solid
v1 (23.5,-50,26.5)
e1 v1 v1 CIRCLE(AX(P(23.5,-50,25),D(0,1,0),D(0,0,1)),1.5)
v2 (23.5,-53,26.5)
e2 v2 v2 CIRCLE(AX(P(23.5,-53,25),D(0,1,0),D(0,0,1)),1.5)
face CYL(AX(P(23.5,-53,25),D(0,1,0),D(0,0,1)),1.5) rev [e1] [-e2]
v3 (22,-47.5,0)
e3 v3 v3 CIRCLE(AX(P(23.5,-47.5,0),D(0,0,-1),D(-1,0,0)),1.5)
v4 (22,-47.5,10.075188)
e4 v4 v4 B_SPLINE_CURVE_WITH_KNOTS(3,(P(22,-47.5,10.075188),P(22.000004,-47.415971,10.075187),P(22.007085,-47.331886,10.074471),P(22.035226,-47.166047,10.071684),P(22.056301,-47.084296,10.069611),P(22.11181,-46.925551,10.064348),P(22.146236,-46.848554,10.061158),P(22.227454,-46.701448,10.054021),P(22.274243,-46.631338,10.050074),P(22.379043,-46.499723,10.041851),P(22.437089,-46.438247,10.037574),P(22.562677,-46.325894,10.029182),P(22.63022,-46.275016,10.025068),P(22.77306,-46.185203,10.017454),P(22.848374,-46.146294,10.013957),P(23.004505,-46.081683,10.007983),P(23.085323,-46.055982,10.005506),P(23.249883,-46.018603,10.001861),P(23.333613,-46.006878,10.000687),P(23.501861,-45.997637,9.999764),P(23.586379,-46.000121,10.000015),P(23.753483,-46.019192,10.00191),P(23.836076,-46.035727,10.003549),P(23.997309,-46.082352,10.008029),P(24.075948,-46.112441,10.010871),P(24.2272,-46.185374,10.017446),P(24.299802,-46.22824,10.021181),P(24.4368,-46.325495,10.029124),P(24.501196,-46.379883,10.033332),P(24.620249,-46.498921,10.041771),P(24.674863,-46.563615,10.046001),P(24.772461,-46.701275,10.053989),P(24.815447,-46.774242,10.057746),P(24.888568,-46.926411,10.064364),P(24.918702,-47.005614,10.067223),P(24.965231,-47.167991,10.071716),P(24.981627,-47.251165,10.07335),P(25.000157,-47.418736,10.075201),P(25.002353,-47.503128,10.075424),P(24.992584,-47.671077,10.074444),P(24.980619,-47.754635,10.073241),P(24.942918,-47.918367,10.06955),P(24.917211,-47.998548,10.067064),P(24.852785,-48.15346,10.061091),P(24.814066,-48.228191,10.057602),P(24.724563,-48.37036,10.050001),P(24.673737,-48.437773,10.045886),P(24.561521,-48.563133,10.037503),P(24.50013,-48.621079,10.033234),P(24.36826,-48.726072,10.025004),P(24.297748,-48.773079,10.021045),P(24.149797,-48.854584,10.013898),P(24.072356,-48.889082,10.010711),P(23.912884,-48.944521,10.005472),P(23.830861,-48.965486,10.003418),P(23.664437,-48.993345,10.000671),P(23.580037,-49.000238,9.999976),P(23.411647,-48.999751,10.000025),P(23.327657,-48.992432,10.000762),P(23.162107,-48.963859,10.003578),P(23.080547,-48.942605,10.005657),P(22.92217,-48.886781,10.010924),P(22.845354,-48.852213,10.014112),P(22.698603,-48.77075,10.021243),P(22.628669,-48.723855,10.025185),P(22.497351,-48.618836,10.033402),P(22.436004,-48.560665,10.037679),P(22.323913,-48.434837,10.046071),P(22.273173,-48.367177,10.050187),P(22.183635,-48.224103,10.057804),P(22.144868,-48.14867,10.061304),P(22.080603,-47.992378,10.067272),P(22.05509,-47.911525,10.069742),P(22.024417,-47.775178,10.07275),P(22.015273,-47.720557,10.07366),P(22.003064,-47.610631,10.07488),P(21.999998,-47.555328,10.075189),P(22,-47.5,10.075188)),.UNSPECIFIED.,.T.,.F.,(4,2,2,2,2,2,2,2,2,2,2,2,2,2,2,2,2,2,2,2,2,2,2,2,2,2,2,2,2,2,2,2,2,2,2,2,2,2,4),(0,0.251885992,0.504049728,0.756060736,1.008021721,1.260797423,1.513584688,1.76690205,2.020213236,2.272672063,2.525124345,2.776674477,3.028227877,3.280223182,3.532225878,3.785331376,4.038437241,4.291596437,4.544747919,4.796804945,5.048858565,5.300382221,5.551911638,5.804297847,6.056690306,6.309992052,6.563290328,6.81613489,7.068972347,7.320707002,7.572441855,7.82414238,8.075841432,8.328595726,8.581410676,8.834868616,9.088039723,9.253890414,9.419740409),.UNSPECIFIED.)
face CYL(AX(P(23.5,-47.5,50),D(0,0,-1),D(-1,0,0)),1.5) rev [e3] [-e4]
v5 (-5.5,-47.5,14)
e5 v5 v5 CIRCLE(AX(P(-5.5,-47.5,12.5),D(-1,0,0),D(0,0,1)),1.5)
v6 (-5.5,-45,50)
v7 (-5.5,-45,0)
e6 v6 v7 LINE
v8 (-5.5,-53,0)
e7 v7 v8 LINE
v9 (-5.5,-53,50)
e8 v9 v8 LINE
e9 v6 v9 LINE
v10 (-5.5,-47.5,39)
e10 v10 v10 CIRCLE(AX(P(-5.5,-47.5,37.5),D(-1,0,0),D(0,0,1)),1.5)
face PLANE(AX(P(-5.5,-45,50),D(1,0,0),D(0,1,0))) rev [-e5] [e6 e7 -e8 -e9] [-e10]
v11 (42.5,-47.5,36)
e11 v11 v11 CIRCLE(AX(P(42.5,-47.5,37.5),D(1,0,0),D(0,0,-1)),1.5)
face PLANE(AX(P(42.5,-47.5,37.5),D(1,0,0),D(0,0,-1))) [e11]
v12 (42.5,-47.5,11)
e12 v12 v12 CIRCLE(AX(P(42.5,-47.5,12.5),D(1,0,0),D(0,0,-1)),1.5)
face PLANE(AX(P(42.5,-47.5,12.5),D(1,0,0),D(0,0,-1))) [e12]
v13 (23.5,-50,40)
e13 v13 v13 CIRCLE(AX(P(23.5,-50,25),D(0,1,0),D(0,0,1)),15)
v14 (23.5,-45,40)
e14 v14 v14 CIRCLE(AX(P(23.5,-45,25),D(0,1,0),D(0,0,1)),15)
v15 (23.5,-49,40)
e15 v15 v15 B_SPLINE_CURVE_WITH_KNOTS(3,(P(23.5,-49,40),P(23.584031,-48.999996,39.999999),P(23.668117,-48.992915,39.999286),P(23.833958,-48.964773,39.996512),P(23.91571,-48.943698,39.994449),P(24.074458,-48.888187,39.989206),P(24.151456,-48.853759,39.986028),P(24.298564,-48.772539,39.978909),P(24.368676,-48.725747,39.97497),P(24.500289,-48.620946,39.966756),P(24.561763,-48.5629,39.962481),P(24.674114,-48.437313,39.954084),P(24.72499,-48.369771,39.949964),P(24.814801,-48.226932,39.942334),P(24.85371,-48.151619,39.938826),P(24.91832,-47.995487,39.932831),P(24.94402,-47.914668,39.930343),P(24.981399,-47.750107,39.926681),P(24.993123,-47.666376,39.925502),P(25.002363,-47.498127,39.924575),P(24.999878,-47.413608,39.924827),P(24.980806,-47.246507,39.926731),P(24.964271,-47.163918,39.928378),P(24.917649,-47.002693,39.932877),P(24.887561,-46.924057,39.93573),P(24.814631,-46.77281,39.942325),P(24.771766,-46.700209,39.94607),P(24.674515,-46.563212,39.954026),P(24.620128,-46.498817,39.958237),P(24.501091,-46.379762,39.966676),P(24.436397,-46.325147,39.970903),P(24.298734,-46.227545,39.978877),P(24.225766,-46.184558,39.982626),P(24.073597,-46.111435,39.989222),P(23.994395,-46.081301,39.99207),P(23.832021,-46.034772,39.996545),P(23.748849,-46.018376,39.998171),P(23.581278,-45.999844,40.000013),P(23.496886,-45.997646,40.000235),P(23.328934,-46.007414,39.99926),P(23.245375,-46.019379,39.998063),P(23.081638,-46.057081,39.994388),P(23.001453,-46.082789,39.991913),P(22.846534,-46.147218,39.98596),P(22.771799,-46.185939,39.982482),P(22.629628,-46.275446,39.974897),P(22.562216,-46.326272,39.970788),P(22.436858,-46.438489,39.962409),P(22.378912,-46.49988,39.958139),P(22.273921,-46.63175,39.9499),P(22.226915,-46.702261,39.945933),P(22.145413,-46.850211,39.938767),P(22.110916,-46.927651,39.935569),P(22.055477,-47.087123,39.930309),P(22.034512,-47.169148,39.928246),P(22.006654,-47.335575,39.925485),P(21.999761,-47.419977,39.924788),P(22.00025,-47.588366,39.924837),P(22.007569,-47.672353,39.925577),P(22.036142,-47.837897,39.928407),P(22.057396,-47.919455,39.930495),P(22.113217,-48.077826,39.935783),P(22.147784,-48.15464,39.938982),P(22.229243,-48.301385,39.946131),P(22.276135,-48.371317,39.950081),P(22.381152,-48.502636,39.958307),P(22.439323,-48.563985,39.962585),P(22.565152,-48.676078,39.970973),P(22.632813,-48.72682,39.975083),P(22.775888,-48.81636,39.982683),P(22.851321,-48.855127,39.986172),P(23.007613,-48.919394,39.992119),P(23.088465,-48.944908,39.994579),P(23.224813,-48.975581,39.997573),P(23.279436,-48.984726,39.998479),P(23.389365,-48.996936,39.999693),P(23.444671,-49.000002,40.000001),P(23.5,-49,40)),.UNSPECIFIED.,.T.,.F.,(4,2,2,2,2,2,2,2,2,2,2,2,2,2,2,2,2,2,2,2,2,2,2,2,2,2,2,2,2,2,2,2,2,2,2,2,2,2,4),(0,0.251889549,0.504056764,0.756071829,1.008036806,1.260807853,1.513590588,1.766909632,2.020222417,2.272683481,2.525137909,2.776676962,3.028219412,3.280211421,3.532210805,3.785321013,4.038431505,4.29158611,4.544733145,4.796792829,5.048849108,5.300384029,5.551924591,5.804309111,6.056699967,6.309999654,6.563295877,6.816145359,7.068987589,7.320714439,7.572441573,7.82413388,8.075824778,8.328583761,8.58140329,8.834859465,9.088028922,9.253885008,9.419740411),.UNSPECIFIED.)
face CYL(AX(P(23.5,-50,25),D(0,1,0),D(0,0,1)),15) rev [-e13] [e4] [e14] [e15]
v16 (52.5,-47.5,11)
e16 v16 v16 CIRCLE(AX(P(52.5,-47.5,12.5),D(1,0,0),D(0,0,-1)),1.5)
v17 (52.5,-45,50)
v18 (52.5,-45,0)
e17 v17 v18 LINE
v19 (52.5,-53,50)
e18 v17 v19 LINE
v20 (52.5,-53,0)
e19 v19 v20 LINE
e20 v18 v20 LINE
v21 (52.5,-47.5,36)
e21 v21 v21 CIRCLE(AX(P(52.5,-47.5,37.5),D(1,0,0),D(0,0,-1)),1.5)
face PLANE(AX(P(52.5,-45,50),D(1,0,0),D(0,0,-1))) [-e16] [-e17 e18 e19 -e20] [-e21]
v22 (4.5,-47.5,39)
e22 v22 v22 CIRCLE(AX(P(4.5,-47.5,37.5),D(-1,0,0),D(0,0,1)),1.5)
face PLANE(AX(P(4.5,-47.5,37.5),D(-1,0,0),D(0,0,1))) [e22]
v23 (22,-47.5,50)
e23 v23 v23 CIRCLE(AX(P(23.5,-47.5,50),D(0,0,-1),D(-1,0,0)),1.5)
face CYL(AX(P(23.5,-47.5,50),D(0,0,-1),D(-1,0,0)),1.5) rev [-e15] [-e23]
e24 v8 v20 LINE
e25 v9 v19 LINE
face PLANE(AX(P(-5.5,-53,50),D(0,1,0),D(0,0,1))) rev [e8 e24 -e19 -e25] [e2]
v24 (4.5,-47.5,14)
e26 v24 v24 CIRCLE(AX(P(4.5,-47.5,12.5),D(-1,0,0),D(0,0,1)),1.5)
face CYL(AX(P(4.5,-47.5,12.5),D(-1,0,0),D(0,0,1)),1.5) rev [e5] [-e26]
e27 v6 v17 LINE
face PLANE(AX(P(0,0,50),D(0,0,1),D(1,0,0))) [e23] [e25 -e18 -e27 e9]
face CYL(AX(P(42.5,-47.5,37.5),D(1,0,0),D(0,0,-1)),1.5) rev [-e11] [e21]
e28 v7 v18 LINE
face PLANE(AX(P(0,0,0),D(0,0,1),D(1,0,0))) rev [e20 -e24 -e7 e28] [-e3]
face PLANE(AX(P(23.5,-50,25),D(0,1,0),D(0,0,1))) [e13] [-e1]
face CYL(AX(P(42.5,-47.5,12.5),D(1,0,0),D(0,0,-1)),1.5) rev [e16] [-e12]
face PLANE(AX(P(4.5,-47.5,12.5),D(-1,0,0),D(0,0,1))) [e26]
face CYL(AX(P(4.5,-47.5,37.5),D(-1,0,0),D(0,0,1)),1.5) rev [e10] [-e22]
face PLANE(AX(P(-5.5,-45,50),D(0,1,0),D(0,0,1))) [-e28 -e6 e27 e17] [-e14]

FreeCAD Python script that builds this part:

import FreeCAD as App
import Part
import Sketcher

doc = App.newDocument("Part")
body = doc.addObject("PartDesign::Body", "Body")

# Sketch on XY plane
sketch1 = doc.addObject("Sketcher::SketchObject", "Sketch")
body.addObject(sketch1)
sketch1.AttachmentSupport = (doc.XY_Plane, [""])
sketch1.MapMode = "FlatFace"
sketch1.addGeometry([
    Part.LineSegment(App.Vector(-6, -45, 0), App.Vector(-6, -53, 0)),
    Part.LineSegment(App.Vector(-6, -53, 0), App.Vector(52, -53, 0)),
    Part.LineSegment(App.Vector(52, -53, 0), App.Vector(52, -45, 0)),
    Part.LineSegment(App.Vector(52, -45, 0), App.Vector(-6, -45, 0)),
], False)
sketch1.addConstraint([
    Sketcher.Constraint("Coincident", 0, 2, 1, 1),
    Sketcher.Constraint("Coincident", 1, 2, 2, 1),
    Sketcher.Constraint("Coincident", 2, 2, 3, 1),
    Sketcher.Constraint("Coincident", 3, 2, 0, 1),
    Sketcher.Constraint("Vertical", 0),
    Sketcher.Constraint("Horizontal", 1),
    Sketcher.Constraint("Vertical", 2),
    Sketcher.Constraint("Horizontal", 3),
    Sketcher.Constraint("DistanceX", 1, 1, 1, 2, 58.0),
    Sketcher.Constraint("DistanceY", 0, 2, 0, 1, 8.0),
    Sketcher.Constraint("DistanceY", 0, 2, -1, 1, 53.0),
    Sketcher.Constraint("DistanceX", 0, 2, -1, 1, 5.5),
])
pad1 = doc.addObject("PartDesign::Pad", "Pad")
body.addObject(pad1)
pad1.Profile = sketch1
pad1.Length = 50

# Sketch on XZ plane
sketch2 = doc.addObject("Sketcher::SketchObject", "Sketch001")
body.addObject(sketch2)
sketch2.AttachmentSupport = (doc.XZ_Plane, [""])
sketch2.MapMode = "FlatFace"
sketch2.AttachmentOffset = App.Placement(App.Vector(0, 0, 45), App.Rotation())
sketch2.addGeometry(Part.Circle(App.Vector(24, 25, 0), App.Vector(0, 0, 1), 15), False)
sketch2.addConstraint([
    Sketcher.Constraint("Diameter", 0, 30.0),
    Sketcher.Constraint("DistanceY", -1, 1, 0, 3, 25.0),
    Sketcher.Constraint("DistanceX", -1, 1, 0, 3, 23.5),
])
pocket1 = doc.addObject("PartDesign::Pocket", "Pocket")
body.addObject(pocket1)
pocket1.Profile = sketch2
pocket1.Length = 5
pocket1.Reversed = True

# Sketch on YZ plane
sketch3 = doc.addObject("Sketcher::SketchObject", "Sketch002")
body.addObject(sketch3)
sketch3.AttachmentSupport = (doc.YZ_Plane, [""])
sketch3.MapMode = "FlatFace"
sketch3.AttachmentOffset = App.Placement(App.Vector(0, 0, -5.5), App.Rotation())
sketch3.addGeometry([
    Part.Circle(App.Vector(-47.5, 12.5, 0), App.Vector(0, 0, 1), 1.5),
    Part.Circle(App.Vector(-47.5, 37.5, 0), App.Vector(0, 0, 1), 1.5),
], False)
sketch3.addConstraint([
    Sketcher.Constraint("Equal", 0, 1),
    Sketcher.Constraint("Vertical", 0, 3, 1, 3),
    Sketcher.Constraint("Diameter", 0, 3.0),
    Sketcher.Constraint("DistanceY", 0, 3, 1, 3, 25.0),
    Sketcher.Constraint("DistanceX", 0, 3, -1, 1, 47.5),
    Sketcher.Constraint("DistanceY", -1, 1, 0, 3, 12.5),
])
pocket2 = doc.addObject("PartDesign::Pocket", "Pocket001")
body.addObject(pocket2)
pocket2.Profile = sketch3
pocket2.Length = 10
pocket2.Reversed = True

# Sketch on YZ plane
sketch4 = doc.addObject("Sketcher::SketchObject", "Sketch003")
body.addObject(sketch4)
sketch4.AttachmentSupport = (doc.YZ_Plane, [""])
sketch4.MapMode = "FlatFace"
sketch4.AttachmentOffset = App.Placement(App.Vector(0, 0, 52.5), App.Rotation())
sketch4.addGeometry([
    Part.Circle(App.Vector(-47.5, 37.5, 0), App.Vector(0, 0, 1), 1.5),
    Part.Circle(App.Vector(-47.5, 12.5, 0), App.Vector(0, 0, 1), 1.5),
], False)
sketch4.addConstraint([
    Sketcher.Constraint("Equal", 0, 1),
    Sketcher.Constraint("Vertical", 0, 3, 1, 3),
    Sketcher.Constraint("Diameter", 0, 3.0),
    Sketcher.Constraint("DistanceY", 1, 3, 0, 3, 25.0),
    Sketcher.Constraint("DistanceX", 0, 3, -1, 1, 47.5),
    Sketcher.Constraint("DistanceY", -1, 1, 0, 3, 37.5),
])
pocket3 = doc.addObject("PartDesign::Pocket", "Pocket002")
body.addObject(pocket3)
pocket3.Profile = sketch4
pocket3.Length = 10

# Sketch on XZ plane
sketch5 = doc.addObject("Sketcher::SketchObject", "Sketch004")
body.addObject(sketch5)
sketch5.AttachmentSupport = (doc.XZ_Plane, [""])
sketch5.MapMode = "FlatFace"
sketch5.AttachmentOffset = App.Placement(App.Vector(0, 0, 50), App.Rotation())
sketch5.addGeometry(Part.Circle(App.Vector(23.5, 25, 0), App.Vector(0, 0, 1), 1.5), False)
sketch5.addConstraint([
    Sketcher.Constraint("Diameter", 0, 3.0),
    Sketcher.Constraint("DistanceY", -1, 1, 0, 3, 25.0),
    Sketcher.Constraint("DistanceX", -1, 1, 0, 3, 23.5),
])
pocket4 = doc.addObject("PartDesign::Pocket", "Pocket003")
body.addObject(pocket4)
pocket4.Profile = sketch5
pocket4.Type = "ThroughAll"
pocket4.Reversed = True

# Sketch on XY plane
sketch6 = doc.addObject("Sketcher::SketchObject", "Sketch005")
body.addObject(sketch6)
sketch6.AttachmentSupport = (doc.XY_Plane, [""])
sketch6.MapMode = "FlatFace"
sketch6.addGeometry(Part.Circle(App.Vector(23.5, -47.5, 0), App.Vector(0, 0, 1), 1.5), False)
sketch6.addConstraint([
    Sketcher.Constraint("Diameter", 0, 3.0),
    Sketcher.Constraint("DistanceX", -1, 1, 0, 3, 23.5),
    Sketcher.Constraint("DistanceY", 0, 3, -1, 1, 47.5),
])
pocket5 = doc.addObject("PartDesign::Pocket", "Pocket004")
body.addObject(pocket5)
pocket5.Profile = sketch6
pocket5.Type = "ThroughAll"
pocket5.Reversed = True

doc.recompute()
